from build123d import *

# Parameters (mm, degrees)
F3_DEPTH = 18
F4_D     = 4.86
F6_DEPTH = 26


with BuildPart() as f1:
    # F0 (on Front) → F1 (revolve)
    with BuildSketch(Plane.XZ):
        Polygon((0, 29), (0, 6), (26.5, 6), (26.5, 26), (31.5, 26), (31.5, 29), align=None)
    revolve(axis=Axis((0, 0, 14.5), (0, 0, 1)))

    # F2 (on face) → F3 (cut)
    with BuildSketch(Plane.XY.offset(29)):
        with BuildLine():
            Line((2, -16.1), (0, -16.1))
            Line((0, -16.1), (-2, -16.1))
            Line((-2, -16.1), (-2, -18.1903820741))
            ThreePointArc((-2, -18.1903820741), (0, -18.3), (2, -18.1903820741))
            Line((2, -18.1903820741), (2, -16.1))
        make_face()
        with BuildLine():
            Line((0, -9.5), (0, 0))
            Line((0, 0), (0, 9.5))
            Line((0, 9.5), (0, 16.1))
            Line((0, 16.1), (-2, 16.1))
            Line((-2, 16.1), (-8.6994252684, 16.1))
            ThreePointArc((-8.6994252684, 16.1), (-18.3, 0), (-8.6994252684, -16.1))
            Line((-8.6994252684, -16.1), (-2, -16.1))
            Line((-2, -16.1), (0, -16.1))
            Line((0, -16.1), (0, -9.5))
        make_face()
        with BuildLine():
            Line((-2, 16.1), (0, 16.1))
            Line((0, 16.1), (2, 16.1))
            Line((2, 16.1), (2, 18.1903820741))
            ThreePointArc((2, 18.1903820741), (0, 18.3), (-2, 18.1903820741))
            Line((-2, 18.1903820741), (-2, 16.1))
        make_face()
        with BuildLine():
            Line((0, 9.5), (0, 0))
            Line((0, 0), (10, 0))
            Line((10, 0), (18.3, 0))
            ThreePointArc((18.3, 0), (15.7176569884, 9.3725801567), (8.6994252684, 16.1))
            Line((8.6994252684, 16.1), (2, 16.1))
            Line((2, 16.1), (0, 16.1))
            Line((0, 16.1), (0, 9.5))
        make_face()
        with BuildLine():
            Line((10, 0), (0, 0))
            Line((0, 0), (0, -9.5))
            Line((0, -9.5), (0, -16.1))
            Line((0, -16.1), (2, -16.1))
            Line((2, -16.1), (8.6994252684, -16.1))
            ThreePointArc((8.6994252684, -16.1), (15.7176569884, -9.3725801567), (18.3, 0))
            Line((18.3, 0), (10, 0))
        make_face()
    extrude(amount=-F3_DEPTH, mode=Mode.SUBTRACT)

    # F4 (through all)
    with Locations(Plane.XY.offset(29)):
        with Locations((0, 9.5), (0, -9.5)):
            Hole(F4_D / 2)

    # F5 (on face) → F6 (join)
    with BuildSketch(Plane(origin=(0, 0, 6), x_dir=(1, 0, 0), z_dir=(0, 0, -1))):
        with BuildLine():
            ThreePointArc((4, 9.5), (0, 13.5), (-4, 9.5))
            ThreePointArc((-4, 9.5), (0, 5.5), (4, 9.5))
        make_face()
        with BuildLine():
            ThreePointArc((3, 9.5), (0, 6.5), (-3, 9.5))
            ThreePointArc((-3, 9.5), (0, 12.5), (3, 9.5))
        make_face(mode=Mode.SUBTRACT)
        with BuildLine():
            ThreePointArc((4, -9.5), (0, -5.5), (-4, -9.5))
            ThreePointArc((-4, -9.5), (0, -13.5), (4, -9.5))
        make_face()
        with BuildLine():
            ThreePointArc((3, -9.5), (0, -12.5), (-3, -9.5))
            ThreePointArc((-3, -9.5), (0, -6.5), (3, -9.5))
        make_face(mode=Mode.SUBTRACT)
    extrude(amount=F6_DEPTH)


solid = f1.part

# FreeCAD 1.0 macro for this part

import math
import FreeCAD as App
import Part
import Sketcher

V = App.Vector

doc = App.newDocument("Part")
body = doc.addObject("PartDesign::Body", "Body")

# Sketch on XZ plane
sketch1 = body.newObject("Sketcher::SketchObject", "Sketch")
sketch1.AttachmentSupport = (doc.getObject("XZ_Plane"), [""])
sketch1.MapMode = "FlatFace"
sketch1.addGeometry(Part.LineSegment(V(0, 29, 0), V(0, 6, 0)), False)
sketch1.addGeometry(Part.LineSegment(V(0, 6, 0), V(26.5, 6, 0)), False)
sketch1.addGeometry(Part.LineSegment(V(26.5, 6, 0), V(26.5, 26, 0)), False)
sketch1.addGeometry(Part.LineSegment(V(26.5, 26, 0), V(31.5, 26, 0)), False)
sketch1.addGeometry(Part.LineSegment(V(31.5, 26, 0), V(31.5, 29, 0)), False)
sketch1.addGeometry(Part.LineSegment(V(31.5, 29, 0), V(0, 29, 0)), False)
sketch1.addConstraint(Sketcher.Constraint("Coincident", 0, 2, 1, 1))
sketch1.addConstraint(Sketcher.Constraint("Coincident", 1, 2, 2, 1))
sketch1.addConstraint(Sketcher.Constraint("Coincident", 2, 2, 3, 1))
sketch1.addConstraint(Sketcher.Constraint("Coincident", 3, 2, 4, 1))
sketch1.addConstraint(Sketcher.Constraint("Coincident", 4, 2, 5, 1))
sketch1.addConstraint(Sketcher.Constraint("Coincident", 5, 2, 0, 1))
sketch1.addConstraint(Sketcher.Constraint("Vertical", 0))
sketch1.addConstraint(Sketcher.Constraint("Horizontal", 1))
sketch1.addConstraint(Sketcher.Constraint("Vertical", 2))
sketch1.addConstraint(Sketcher.Constraint("Horizontal", 3))
sketch1.addConstraint(Sketcher.Constraint("Vertical", 4))
sketch1.addConstraint(Sketcher.Constraint("Horizontal", 5))
sketch1.addConstraint(Sketcher.Constraint("PointOnObject", 0, 2, -2))
sketch1.addConstraint(Sketcher.Constraint("DistanceX", 3, 1, 3, 2, 5.0))
sketch1.addConstraint(Sketcher.Constraint("DistanceY", 0, 2, 0, 1, 23.0))
sketch1.addConstraint(Sketcher.Constraint("DistanceY", 2, 1, 2, 2, 20.0))
sketch1.addConstraint(Sketcher.Constraint("DistanceX", 1, 1, 1, 2, 26.5))
sketch1.addConstraint(Sketcher.Constraint("DistanceY", -1, 1, 0, 2, 6.0))
revolution = body.newObject("PartDesign::Revolution", "Revolution")
revolution.Profile = sketch1
revolution.ReferenceAxis = (sketch1, ["V_Axis"])
revolution.Angle = 360

# Sketch on XY plane
sketch2 = body.newObject("Sketcher::SketchObject", "Sketch001")
sketch2.AttachmentSupport = (doc.getObject("XY_Plane"), [""])
sketch2.MapMode = "FlatFace"
sketch2.AttachmentOffset = App.Placement(V(0, 0, 29), App.Rotation())
sketch2.addGeometry(Part.ArcOfCircle(Part.Circle(V(0, 0, 0), V(0, 0, 1), 18.3), math.radians(0), math.radians(62)), False)
sketch2.addGeometry(Part.LineSegment(V(8.7, 16.1, 0), V(2, 16.1, 0)), False)
sketch2.addGeometry(Part.LineSegment(V(2, 16.1, 0), V(2, 18.2, 0)), False)
sketch2.addGeometry(Part.ArcOfCircle(Part.Circle(V(0, 0, 0), V(0, 0, 1), 18.3), math.radians(83.73), math.radians(96.27)), False)
sketch2.addGeometry(Part.LineSegment(V(-2, 18.2, 0), V(-2, 16.1, 0)), False)
sketch2.addGeometry(Part.LineSegment(V(-2, 16.1, 0), V(-8.7, 16.1, 0)), False)
sketch2.addGeometry(Part.ArcOfCircle(Part.Circle(V(0, 0, 0), V(0, 0, 1), 18.3), math.radians(118), math.radians(242)), False)
sketch2.addGeometry(Part.LineSegment(V(-8.7, -16.1, 0), V(-2, -16.1, 0)), False)
sketch2.addGeometry(Part.LineSegment(V(-2, -16.1, 0), V(-2, -18.2, 0)), False)
sketch2.addGeometry(Part.ArcOfCircle(Part.Circle(V(0, 0, 0), V(0, 0, 1), 18.3), math.radians(-96.27), math.radians(-83.73)), False)
sketch2.addGeometry(Part.LineSegment(V(2, -18.2, 0), V(2, -16.1, 0)), False)
sketch2.addGeometry(Part.LineSegment(V(2, -16.1, 0), V(8.7, -16.1, 0)), False)
sketch2.addGeometry(Part.ArcOfCircle(Part.Circle(V(0, 0, 0), V(0, 0, 1), 18.3), math.radians(-62), math.radians(0)), False)
sketch2.addConstraint(Sketcher.Constraint("Coincident", 0, 2, 1, 1))
sketch2.addConstraint(Sketcher.Constraint("Coincident", 1, 2, 2, 1))
sketch2.addConstraint(Sketcher.Constraint("Coincident", 2, 2, 3, 1))
sketch2.addConstraint(Sketcher.Constraint("Coincident", 3, 2, 4, 1))
sketch2.addConstraint(Sketcher.Constraint("Coincident", 4, 2, 5, 1))
sketch2.addConstraint(Sketcher.Constraint("Coincident", 5, 2, 6, 1))
sketch2.addConstraint(Sketcher.Constraint("Coincident", 6, 2, 7, 1))
sketch2.addConstraint(Sketcher.Constraint("Coincident", 7, 2, 8, 1))
sketch2.addConstraint(Sketcher.Constraint("Coincident", 8, 2, 9, 1))
sketch2.addConstraint(Sketcher.Constraint("Coincident", 9, 2, 10, 1))
sketch2.addConstraint(Sketcher.Constraint("Coincident", 10, 2, 11, 1))
sketch2.addConstraint(Sketcher.Constraint("Coincident", 11, 2, 12, 1))
sketch2.addConstraint(Sketcher.Constraint("Tangent", 12, 2, 0, 1))
sketch2.addConstraint(Sketcher.Constraint("Horizontal", 1))
sketch2.addConstraint(Sketcher.Constraint("Vertical", 2))
sketch2.addConstraint(Sketcher.Constraint("Vertical", 4))
sketch2.addConstraint(Sketcher.Constraint("Horizontal", 5))
sketch2.addConstraint(Sketcher.Constraint("Horizontal", 7))
sketch2.addConstraint(Sketcher.Constraint("Vertical", 8))
sketch2.addConstraint(Sketcher.Constraint("Vertical", 10))
sketch2.addConstraint(Sketcher.Constraint("Horizontal", 11))
sketch2.addConstraint(Sketcher.Constraint("Coincident", 0, 3, -1, 1))
sketch2.addConstraint(Sketcher.Constraint("Coincident", 3, 3, -1, 1))
sketch2.addConstraint(Sketcher.Constraint("Coincident", 6, 3, -1, 1))
sketch2.addConstraint(Sketcher.Constraint("Coincident", 9, 3, -1, 1))
sketch2.addConstraint(Sketcher.Constraint("Equal", 0, 3))
sketch2.addConstraint(Sketcher.Constraint("Equal", 3, 6))
sketch2.addConstraint(Sketcher.Constraint("Equal", 6, 9))
sketch2.addConstraint(Sketcher.Constraint("Equal", 9, 12))
sketch2.addConstraint(Sketcher.Constraint("Symmetric", 1, 2, 7, 2, -1, 1))
sketch2.addConstraint(Sketcher.Constraint("Symmetric", 4, 2, 10, 2, -1, 1))
sketch2.addConstraint(Sketcher.Constraint("Symmetric", 1, 2, 4, 2, -2))
sketch2.addConstraint(Sketcher.Constraint("PointOnObject", 12, 2, -1))
sketch2.addConstraint(Sketcher.Constraint("Radius", 0, 18.3))
sketch2.addConstraint(Sketcher.Constraint("DistanceX", -1, 1, 1, 2, 2.0))
sketch2.addConstraint(Sketcher.Constraint("DistanceY", -1, 1, 0, 2, 16.1))
pocket1 = body.newObject("PartDesign::Pocket", "Pocket")
pocket1.Profile = sketch2
pocket1.Length = 18

# Sketch on XY plane
sketch3 = body.newObject("Sketcher::SketchObject", "Sketch002")
sketch3.AttachmentSupport = (doc.getObject("XY_Plane"), [""])
sketch3.MapMode = "FlatFace"
sketch3.AttachmentOffset = App.Placement(V(0, 0, 29), App.Rotation())
sketch3.addGeometry(Part.Circle(V(0, 9.5, 0), V(0, 0, 1), 2.4), False)
sketch3.addGeometry(Part.Circle(V(0, -9.5, 0), V(0, 0, 1), 2.4), False)
sketch3.addConstraint(Sketcher.Constraint("Equal", 0, 1))
sketch3.addConstraint(Sketcher.Constraint("Symmetric", 0, 3, 1, 3, -1, 1))
sketch3.addConstraint(Sketcher.Constraint("PointOnObject", 0, 3, -2))
sketch3.addConstraint(Sketcher.Constraint("Diameter", 0, 4.86))
sketch3.addConstraint(Sketcher.Constraint("DistanceY", 1, 3, 0, 3, 19.0))
doc.recompute()
hole = body.newObject("PartDesign::Hole", "Hole")
hole.Profile = sketch3
hole.ThreadType = "None"
hole.Diameter = 4.86
hole.DepthType = "ThroughAll"

# Sketch on XY plane
sketch4 = body.newObject("Sketcher::SketchObject", "Sketch003")
sketch4.AttachmentSupport = (doc.getObject("XY_Plane"), [""])
sketch4.MapMode = "FlatFace"
sketch4.AttachmentOffset = App.Placement(V(0, 0, 6), App.Rotation())
sketch4.addGeometry(Part.Circle(V(0, -9.5, 0), V(0, 0, 1), 4), False)
sketch4.addGeometry(Part.Circle(V(0, -9.5, 0), V(0, 0, 1), 3), False)
sketch4.addGeometry(Part.Circle(V(0, 9.5, 0), V(0, 0, 1), 4), False)
sketch4.addGeometry(Part.Circle(V(0, 9.5, 0), V(0, 0, 1), 3), False)
sketch4.addConstraint(Sketcher.Constraint("Coincident", 1, 3, 0, 3))
sketch4.addConstraint(Sketcher.Constraint("Coincident", 3, 3, 2, 3))
sketch4.addConstraint(Sketcher.Constraint("Equal", 0, 2))
sketch4.addConstraint(Sketcher.Constraint("Equal", 1, 3))
sketch4.addConstraint(Sketcher.Constraint("Symmetric", 0, 3, 2, 3, -1, 1))
sketch4.addConstraint(Sketcher.Constraint("PointOnObject", 0, 3, -2))
sketch4.addConstraint(Sketcher.Constraint("Diameter", 0, 8.0))
sketch4.addConstraint(Sketcher.Constraint("Diameter", 1, 6.0))
sketch4.addConstraint(Sketcher.Constraint("DistanceY", 0, 3, 2, 3, 19.0))
pad1 = body.newObject("PartDesign::Pad", "Pad")
pad1.Profile = sketch4
pad1.Length = 26
pad1.Reversed = True

doc.recompute()
